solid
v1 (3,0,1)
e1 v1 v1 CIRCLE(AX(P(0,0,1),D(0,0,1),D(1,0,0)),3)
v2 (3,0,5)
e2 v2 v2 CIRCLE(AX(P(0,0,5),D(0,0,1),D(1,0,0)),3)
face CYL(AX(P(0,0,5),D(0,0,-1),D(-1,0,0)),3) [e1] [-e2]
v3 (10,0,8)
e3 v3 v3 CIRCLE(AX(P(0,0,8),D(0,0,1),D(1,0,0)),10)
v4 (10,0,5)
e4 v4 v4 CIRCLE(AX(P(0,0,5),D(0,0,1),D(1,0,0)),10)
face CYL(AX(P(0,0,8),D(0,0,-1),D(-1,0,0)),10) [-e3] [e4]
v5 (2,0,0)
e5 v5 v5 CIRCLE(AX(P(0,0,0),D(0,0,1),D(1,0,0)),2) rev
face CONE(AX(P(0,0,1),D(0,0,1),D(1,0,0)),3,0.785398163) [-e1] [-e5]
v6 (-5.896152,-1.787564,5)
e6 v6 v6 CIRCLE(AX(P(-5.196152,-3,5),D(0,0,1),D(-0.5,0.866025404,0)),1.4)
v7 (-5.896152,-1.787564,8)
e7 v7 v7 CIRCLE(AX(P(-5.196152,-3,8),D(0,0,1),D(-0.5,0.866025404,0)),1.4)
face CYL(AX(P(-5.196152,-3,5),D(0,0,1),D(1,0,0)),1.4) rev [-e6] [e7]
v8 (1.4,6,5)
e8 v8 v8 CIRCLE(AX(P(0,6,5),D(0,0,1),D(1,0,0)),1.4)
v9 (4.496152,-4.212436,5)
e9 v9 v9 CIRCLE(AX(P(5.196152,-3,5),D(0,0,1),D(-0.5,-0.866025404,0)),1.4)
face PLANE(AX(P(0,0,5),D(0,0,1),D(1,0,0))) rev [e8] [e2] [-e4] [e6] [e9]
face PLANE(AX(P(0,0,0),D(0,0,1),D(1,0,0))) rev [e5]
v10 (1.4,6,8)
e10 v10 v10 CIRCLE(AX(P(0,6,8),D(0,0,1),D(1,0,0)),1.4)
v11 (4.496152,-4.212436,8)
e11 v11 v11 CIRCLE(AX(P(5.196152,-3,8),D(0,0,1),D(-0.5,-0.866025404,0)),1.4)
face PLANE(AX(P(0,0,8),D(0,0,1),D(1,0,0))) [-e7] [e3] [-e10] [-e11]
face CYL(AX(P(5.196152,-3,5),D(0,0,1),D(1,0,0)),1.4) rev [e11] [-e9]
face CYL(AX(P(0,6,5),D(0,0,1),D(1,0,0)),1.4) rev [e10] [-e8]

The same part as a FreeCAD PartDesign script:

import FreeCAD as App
import Part
import Sketcher


def edges_at(feature, points):
    """Names of the edges that pass closest to the given points."""
    edges = feature.Shape.Edges
    near = lambda p: min(range(len(edges)), key=lambda i: edges[i].distToShape(Part.Vertex(*p))[0])
    return sorted({f"Edge{near(p) + 1}" for p in points})

doc = App.newDocument("Part")
body = doc.addObject("PartDesign::Body", "Body")

sketch1 = body.newObject("Sketcher::SketchObject", "Sketch")
sketch1.AttachmentSupport = (doc.getObject("XY_Plane"), [""])
sketch1.MapMode = "FlatFace"
sketch1.addGeometry(Part.Circle(App.Vector(0, 0, 0), App.Vector(0, 0, 1), 3), False)
sketch1.addConstraint(Sketcher.Constraint("Coincident", 0, 3, -1, 1))
sketch1.addConstraint(Sketcher.Constraint("Diameter", 0, 6.0))
pad1 = body.newObject("PartDesign::Pad", "Pad")
pad1.Profile = sketch1
pad1.Length = 5

sketch2 = body.newObject("Sketcher::SketchObject", "Sketch001")
sketch2.AttachmentSupport = (doc.getObject("XY_Plane"), [""])
sketch2.MapMode = "FlatFace"
sketch2.AttachmentOffset = App.Placement(App.Vector(0, 0, 5), App.Rotation())
sketch2.addGeometry(Part.Circle(App.Vector(0, 0, 0), App.Vector(0, 0, 1), 10), False)
sketch2.addConstraint(Sketcher.Constraint("Coincident", 0, 3, -1, 1))
sketch2.addConstraint(Sketcher.Constraint("Diameter", 0, 20.0))
pad2 = body.newObject("PartDesign::Pad", "Pad001")
pad2.Profile = sketch2
pad2.Length = 3

sketch3 = body.newObject("Sketcher::SketchObject", "Sketch002")
sketch3.AttachmentSupport = (doc.getObject("XY_Plane"), [""])
sketch3.MapMode = "FlatFace"
sketch3.AttachmentOffset = App.Placement(App.Vector(0, 0, 8), App.Rotation())
sketch3.addGeometry(Part.Circle(App.Vector(0, 6, 0), App.Vector(0, 0, 1), 1.4), False)
sketch3.addConstraint(Sketcher.Constraint("PointOnObject", 0, 3, -2))
sketch3.addConstraint(Sketcher.Constraint("Diameter", 0, 2.8))
sketch3.addConstraint(Sketcher.Constraint("DistanceY", -1, 1, 0, 3, 6.0))
pocket1 = body.newObject("PartDesign::Pocket", "Pocket")
pocket1.Profile = sketch3
pocket1.Length = 3
doc.recompute()

polarpattern = body.newObject("PartDesign::PolarPattern", "PolarPattern")
polarpattern.Originals = [pocket1]
polarpattern.Axis = (doc.getObject("Z_Axis"), [""])
polarpattern.Angle = 360
polarpattern.Occurrences = 3
body.Tip = polarpattern
doc.recompute()

chamfer = body.newObject("PartDesign::Chamfer", "Chamfer")
chamfer.Base = (polarpattern, edges_at(polarpattern, [(-3, 0, 0)]))
chamfer.Size = 1

doc.recompute()
